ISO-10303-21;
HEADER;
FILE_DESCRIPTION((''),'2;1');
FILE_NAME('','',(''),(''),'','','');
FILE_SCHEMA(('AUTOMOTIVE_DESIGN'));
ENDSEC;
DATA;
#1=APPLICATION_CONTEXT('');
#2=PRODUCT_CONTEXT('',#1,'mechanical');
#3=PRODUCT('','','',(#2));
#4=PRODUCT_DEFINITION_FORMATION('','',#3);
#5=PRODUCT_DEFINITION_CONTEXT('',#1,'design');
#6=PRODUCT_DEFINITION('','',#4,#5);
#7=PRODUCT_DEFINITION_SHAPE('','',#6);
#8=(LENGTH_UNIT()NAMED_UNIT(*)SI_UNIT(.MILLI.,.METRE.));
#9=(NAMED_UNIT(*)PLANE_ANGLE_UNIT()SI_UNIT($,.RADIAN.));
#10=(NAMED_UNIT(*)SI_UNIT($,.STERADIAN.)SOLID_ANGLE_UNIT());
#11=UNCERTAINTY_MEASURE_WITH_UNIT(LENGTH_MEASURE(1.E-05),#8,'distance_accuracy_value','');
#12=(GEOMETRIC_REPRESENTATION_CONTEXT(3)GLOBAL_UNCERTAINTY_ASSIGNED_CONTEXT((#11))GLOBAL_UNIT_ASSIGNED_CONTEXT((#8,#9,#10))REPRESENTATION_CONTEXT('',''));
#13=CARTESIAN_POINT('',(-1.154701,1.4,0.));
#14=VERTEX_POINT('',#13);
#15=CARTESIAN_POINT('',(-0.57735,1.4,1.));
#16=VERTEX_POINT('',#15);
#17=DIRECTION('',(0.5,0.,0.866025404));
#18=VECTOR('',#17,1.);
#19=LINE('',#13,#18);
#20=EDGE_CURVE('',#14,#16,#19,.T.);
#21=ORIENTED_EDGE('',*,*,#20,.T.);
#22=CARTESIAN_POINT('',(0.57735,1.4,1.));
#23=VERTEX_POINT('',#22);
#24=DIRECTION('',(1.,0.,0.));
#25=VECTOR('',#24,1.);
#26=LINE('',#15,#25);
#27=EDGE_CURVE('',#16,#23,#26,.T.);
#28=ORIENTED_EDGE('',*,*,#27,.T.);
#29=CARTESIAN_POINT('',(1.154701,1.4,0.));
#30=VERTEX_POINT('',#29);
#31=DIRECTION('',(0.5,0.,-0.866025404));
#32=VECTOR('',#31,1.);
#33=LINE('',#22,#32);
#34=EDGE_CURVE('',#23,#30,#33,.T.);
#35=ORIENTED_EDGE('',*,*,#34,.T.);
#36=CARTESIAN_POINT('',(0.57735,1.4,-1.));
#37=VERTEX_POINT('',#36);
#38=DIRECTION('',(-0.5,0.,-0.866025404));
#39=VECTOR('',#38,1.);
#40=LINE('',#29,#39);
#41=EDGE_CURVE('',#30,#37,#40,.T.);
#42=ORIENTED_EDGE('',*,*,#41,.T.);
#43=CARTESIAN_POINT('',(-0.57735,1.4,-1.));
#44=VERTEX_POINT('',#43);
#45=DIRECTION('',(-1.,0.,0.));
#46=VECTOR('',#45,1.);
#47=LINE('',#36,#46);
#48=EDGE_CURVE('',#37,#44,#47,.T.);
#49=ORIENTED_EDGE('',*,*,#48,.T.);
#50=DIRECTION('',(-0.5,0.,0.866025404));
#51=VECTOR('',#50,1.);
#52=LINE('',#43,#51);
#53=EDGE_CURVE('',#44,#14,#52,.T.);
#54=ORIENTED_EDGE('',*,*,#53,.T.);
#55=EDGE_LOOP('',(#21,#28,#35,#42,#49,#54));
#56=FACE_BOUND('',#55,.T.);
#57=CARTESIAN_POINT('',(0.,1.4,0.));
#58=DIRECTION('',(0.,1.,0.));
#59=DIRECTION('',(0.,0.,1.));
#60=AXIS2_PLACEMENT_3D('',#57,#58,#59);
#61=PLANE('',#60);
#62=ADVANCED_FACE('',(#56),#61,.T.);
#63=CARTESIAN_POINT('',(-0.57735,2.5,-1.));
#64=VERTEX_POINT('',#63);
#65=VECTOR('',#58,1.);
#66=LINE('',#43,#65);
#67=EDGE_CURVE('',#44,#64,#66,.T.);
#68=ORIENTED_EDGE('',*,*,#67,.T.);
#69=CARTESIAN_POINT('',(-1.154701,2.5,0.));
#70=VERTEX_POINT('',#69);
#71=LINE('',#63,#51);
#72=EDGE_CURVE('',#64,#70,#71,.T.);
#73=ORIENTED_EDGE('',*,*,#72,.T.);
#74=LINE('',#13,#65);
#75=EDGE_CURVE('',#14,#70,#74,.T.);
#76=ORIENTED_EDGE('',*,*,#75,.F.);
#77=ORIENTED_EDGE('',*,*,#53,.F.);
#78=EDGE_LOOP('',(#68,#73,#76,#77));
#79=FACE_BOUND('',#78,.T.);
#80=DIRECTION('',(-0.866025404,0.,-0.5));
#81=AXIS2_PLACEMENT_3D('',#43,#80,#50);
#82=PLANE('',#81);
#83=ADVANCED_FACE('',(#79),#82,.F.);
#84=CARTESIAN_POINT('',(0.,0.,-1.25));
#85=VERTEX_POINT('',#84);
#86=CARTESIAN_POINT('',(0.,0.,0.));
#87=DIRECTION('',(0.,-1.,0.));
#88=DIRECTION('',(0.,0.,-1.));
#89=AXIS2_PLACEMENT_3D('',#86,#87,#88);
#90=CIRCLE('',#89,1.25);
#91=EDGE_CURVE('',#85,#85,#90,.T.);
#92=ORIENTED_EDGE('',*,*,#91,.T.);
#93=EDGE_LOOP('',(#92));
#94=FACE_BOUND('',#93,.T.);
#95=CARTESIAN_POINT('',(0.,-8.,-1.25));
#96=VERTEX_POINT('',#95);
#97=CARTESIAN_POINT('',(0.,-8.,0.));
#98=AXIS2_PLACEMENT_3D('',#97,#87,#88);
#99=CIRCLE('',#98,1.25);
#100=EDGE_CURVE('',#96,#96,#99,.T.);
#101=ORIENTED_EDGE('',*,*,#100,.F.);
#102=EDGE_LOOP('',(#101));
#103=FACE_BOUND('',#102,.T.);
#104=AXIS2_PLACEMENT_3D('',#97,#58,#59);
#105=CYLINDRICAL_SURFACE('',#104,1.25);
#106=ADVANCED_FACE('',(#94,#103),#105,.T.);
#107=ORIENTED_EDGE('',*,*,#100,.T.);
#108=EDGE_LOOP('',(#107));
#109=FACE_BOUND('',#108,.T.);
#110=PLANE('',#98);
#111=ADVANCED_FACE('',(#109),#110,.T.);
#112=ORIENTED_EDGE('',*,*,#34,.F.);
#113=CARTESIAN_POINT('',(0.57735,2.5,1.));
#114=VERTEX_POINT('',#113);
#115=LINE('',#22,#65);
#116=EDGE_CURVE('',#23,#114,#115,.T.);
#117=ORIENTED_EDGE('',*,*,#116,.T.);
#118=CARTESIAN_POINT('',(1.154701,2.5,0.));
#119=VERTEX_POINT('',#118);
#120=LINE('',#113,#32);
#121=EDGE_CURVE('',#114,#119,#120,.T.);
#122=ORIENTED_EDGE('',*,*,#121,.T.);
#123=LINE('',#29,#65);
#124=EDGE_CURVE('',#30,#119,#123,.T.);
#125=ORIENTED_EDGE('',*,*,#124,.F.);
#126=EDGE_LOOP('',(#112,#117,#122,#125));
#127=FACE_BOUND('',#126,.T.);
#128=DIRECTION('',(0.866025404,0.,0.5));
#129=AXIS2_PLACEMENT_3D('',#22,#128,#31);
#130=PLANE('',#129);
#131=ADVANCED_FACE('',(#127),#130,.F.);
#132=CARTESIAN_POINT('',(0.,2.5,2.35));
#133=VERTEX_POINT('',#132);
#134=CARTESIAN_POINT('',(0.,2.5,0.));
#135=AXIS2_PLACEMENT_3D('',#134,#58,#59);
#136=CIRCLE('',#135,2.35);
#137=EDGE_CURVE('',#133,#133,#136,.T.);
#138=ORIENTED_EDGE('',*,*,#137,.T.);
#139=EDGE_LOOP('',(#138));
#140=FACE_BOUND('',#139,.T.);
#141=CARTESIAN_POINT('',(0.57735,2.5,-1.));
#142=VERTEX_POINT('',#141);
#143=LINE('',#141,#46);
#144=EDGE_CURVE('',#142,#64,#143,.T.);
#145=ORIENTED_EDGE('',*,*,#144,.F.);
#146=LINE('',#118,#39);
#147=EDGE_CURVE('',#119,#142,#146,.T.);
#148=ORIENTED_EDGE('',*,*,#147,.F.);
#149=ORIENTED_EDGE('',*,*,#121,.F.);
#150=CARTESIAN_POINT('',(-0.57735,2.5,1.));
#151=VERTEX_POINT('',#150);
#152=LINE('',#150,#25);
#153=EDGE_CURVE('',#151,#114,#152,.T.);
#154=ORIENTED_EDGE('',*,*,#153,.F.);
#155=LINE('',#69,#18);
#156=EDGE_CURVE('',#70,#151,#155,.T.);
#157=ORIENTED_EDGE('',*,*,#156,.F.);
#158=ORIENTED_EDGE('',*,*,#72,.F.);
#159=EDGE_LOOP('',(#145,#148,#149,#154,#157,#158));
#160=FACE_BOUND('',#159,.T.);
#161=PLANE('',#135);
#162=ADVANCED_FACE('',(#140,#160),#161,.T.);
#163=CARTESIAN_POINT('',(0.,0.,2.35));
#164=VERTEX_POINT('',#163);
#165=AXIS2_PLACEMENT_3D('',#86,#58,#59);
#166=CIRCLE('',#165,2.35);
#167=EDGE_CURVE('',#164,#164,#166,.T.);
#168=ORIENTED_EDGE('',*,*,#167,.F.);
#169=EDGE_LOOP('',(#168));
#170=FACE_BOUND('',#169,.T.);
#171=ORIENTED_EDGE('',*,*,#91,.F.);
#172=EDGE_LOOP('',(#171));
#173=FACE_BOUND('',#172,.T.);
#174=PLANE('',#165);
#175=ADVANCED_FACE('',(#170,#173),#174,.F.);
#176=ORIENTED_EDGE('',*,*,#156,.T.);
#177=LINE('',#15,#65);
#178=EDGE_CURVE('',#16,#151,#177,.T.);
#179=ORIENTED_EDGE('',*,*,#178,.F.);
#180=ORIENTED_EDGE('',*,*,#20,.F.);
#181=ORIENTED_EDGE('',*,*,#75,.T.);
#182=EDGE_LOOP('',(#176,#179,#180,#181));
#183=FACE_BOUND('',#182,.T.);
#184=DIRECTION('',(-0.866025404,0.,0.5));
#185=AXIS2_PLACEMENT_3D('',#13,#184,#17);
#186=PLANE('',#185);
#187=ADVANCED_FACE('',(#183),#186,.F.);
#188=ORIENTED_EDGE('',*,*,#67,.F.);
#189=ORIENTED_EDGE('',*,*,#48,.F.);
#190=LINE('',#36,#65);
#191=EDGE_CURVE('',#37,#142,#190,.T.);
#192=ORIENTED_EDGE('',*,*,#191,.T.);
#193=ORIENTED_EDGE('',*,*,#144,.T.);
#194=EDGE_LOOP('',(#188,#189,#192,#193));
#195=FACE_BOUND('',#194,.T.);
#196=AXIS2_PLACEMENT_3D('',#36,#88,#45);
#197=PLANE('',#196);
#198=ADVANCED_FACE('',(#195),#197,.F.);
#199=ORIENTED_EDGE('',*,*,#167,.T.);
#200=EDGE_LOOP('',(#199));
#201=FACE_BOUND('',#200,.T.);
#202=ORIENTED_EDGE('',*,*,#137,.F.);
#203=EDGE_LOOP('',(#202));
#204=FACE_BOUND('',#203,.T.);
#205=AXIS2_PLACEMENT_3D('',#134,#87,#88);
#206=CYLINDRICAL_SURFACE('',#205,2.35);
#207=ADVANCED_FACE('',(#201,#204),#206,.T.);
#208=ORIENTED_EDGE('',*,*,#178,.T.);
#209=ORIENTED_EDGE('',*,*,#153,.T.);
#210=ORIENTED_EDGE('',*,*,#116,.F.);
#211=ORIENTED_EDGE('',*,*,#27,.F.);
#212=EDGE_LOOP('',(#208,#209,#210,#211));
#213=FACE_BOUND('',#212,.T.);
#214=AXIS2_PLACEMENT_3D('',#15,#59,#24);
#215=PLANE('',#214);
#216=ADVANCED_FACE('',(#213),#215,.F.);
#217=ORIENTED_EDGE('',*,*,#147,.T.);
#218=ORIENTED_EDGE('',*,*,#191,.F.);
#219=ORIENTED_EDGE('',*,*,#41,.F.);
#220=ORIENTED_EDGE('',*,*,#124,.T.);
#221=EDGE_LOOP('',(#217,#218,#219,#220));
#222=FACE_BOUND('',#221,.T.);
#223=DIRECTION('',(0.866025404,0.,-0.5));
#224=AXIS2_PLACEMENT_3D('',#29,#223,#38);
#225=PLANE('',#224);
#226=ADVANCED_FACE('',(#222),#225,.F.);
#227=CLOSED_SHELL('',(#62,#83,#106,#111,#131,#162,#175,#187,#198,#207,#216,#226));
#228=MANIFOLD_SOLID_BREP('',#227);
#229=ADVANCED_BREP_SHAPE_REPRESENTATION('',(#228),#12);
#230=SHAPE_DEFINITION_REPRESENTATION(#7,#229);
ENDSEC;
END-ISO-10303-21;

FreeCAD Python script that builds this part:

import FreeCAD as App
import Part
import Sketcher

V = App.Vector
Q = App.Units.Quantity

doc = App.newDocument("Part")
body = doc.addObject("PartDesign::Body", "Body")

# Sketch on XZ plane
sketch1 = body.newObject("Sketcher::SketchObject", "Sketch")
sketch1.AttachmentSupport = (doc.getObject("XZ_Plane"), [""])
sketch1.MapMode = "FlatFace"
sketch1.addGeometry(Part.Circle(V(0, 0, 0), V(0, 0, 1), 2.4), False)
sketch1.addConstraint([
    Sketcher.Constraint("Coincident", 0, 3, -1, 1),
    Sketcher.Constraint("Diameter", 0, 4.7),
])
pad1 = body.newObject("PartDesign::Pad", "Pad")
pad1.Profile = sketch1
pad1.Length = 2.5
pad1.Reversed = True

# Sketch on XZ plane
sketch2 = body.newObject("Sketcher::SketchObject", "Sketch001")
sketch2.AttachmentSupport = (doc.getObject("XZ_Plane"), [""])
sketch2.MapMode = "FlatFace"
sketch2.AttachmentOffset = App.Placement(V(0, 0, -2.5), App.Rotation())
sketch2.addGeometry([
    Part.LineSegment(V(1.2, 0, 0), V(0.6, -1, 0)),  # 0
    Part.LineSegment(V(0.6, -1, 0), V(-0.6, -1, 0)),  # 1
    Part.LineSegment(V(-0.6, -1, 0), V(-1.2, 0, 0)),  # 2
    Part.LineSegment(V(-1.2, 0, 0), V(-0.6, 1, 0)),  # 3
    Part.LineSegment(V(-0.6, 1, 0), V(0.6, 1, 0)),  # 4
    Part.LineSegment(V(0.6, 1, 0), V(1.2, 0, 0)),  # 5
], False)
sketch2.addConstraint([
    Sketcher.Constraint("Coincident", 0, 2, 1, 1),
    Sketcher.Constraint("Coincident", 1, 2, 2, 1),
    Sketcher.Constraint("Coincident", 2, 2, 3, 1),
    Sketcher.Constraint("Coincident", 3, 2, 4, 1),
    Sketcher.Constraint("Coincident", 4, 2, 5, 1),
    Sketcher.Constraint("Coincident", 5, 2, 0, 1),
    Sketcher.Constraint("Horizontal", 1),
    Sketcher.Constraint("Horizontal", 4),
    Sketcher.Constraint("Symmetric", 0, 2, 3, 2, -1, 1),
    Sketcher.Constraint("Symmetric", 2, 2, 5, 2, -1, 1),
    Sketcher.Constraint("PointOnObject", 2, 2, -1),
    Sketcher.Constraint("Parallel", 2, 5),
    Sketcher.Constraint("Vertical", 1, 2, 3, 2),
    Sketcher.Constraint("Angle", 0, Q("-120 deg")),
    Sketcher.Constraint("DistanceY", 0, 2, -1, 1, 1.0),
    Sketcher.Constraint("DistanceX", 1, 2, 1, 1, 1.154701),
])
pocket1 = body.newObject("PartDesign::Pocket", "Pocket")
pocket1.Profile = sketch2
pocket1.Length = 1.1
pocket1.Reversed = True

# Sketch on XZ plane
sketch3 = body.newObject("Sketcher::SketchObject", "Sketch002")
sketch3.AttachmentSupport = (doc.getObject("XZ_Plane"), [""])
sketch3.MapMode = "FlatFace"
sketch3.addGeometry(Part.Circle(V(0, 0, 0), V(0, 0, 1), 1.2), False)
sketch3.addConstraint([
    Sketcher.Constraint("Coincident", 0, 3, -1, 1),
    Sketcher.Constraint("Diameter", 0, 2.5),
])
pad2 = body.newObject("PartDesign::Pad", "Pad001")
pad2.Profile = sketch3
pad2.Length = 8

doc.recompute()
